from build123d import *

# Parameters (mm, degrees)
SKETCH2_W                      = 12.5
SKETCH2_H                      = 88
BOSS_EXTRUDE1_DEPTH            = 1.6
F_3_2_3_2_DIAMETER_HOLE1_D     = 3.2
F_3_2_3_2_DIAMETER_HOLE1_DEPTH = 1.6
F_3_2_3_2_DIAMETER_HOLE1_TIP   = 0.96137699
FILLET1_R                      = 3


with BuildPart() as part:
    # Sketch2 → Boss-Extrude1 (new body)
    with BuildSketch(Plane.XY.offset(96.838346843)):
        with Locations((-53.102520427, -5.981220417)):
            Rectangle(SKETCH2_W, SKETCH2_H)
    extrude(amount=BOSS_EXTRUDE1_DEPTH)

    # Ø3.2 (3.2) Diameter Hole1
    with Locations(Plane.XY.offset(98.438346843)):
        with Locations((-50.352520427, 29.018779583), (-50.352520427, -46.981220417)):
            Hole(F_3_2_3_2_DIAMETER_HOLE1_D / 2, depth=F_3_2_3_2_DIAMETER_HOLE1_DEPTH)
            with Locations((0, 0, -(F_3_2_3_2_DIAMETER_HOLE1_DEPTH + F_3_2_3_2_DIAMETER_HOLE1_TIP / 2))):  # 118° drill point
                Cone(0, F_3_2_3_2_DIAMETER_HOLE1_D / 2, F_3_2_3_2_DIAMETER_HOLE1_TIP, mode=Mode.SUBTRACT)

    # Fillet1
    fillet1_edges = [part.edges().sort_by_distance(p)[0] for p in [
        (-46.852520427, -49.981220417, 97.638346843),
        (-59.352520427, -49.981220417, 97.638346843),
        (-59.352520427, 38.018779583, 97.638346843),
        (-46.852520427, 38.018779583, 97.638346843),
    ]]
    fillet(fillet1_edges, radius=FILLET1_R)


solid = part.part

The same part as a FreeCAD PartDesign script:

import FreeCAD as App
import Part
import Sketcher
from FreeCAD import Vector
Q = App.Units.Quantity


def edges_at(feature, points):
    """Names of the edges that pass closest to the given points."""
    edges = feature.Shape.Edges
    near = lambda p: min(range(len(edges)), key=lambda i: edges[i].distToShape(Part.Vertex(*p))[0])
    return sorted({f"Edge{near(p) + 1}" for p in points})

doc = App.newDocument("Part")
params = doc.addObject("Spreadsheet::Sheet", "Params")
for row, (alias, value) in enumerate([
    ("sketch1_height", "88 mm"),
    ("sketch1_width", "12.5 mm"),
    ("pad1_length", "1.6 mm"),
    ("sketch2_diameter", "3.2 mm"),
    ("hole_diameter", "3.2 mm"),
    ("hole_depth", "1.6 mm"),
    ("fillet_radius", "3 mm"),
], start=1):
    params.set(f"A{row}", alias)
    params.set(f"B{row}", "=" + value)
    params.setAlias(f"B{row}", alias)

body = doc.addObject("PartDesign::Body", "Body")

# Sketch on XY plane
sketch1 = body.newObject("Sketcher::SketchObject", "Sketch")
sketch1.AttachmentSupport = (doc.getObject("XY_Plane"), [""])
sketch1.MapMode = "FlatFace"
sketch1.AttachmentOffset = App.Placement(Vector(0, 0, 96.838347), App.Rotation())
sketch1.addGeometry([
    Part.LineSegment(Vector(-59, 38, 0), Vector(-59, -50, 0)),
    Part.LineSegment(Vector(-59, -50, 0), Vector(-47, -50, 0)),
    Part.LineSegment(Vector(-47, -50, 0), Vector(-47, 38, 0)),
    Part.LineSegment(Vector(-47, 38, 0), Vector(-59, 38, 0)),
], False)
sketch1.addConstraint([
    Sketcher.Constraint("Coincident", 0, 2, 1, 1),
    Sketcher.Constraint("Coincident", 1, 2, 2, 1),
    Sketcher.Constraint("Coincident", 2, 2, 3, 1),
    Sketcher.Constraint("Coincident", 3, 2, 0, 1),
    Sketcher.Constraint("Vertical", 0),
    Sketcher.Constraint("Horizontal", 1),
    Sketcher.Constraint("Vertical", 2),
    Sketcher.Constraint("Horizontal", 3),
    Sketcher.Constraint("DistanceY", 0, 2, 0, 1, Q("88 mm")),
    Sketcher.Constraint("DistanceX", 1, 1, 1, 2, Q("12.5 mm")),
    Sketcher.Constraint("DistanceX", 0, 2, -1, 1, Q("59.35252 mm")),
    Sketcher.Constraint("DistanceY", 0, 2, -1, 1, Q("49.98122 mm")),
])
sketch1.setExpression("Constraints[8]", "Params.sketch1_height")
sketch1.setExpression("Constraints[9]", "Params.sketch1_width")
pad1 = body.newObject("PartDesign::Pad", "Pad")
pad1.Profile = sketch1
pad1.setExpression("Length", "Params.pad1_length")

# Sketch on XY plane
sketch2 = body.newObject("Sketcher::SketchObject", "Sketch001")
sketch2.AttachmentSupport = (doc.getObject("XY_Plane"), [""])
sketch2.MapMode = "FlatFace"
sketch2.AttachmentOffset = App.Placement(Vector(0, 0, 98.438347), App.Rotation())
sketch2.addGeometry([
    Part.Circle(Vector(-50.4, 29, 0), Vector(0, 0, 1), 1.6),
    Part.Circle(Vector(-50.4, -47, 0), Vector(0, 0, 1), 1.6),
], False)
sketch2.addConstraint([
    Sketcher.Constraint("Equal", 0, 1),
    Sketcher.Constraint("Vertical", 0, 3, 1, 3),
    Sketcher.Constraint("Diameter", 0, Q("3.2 mm")),
    Sketcher.Constraint("DistanceY", 1, 3, 0, 3, Q("76 mm")),
    Sketcher.Constraint("DistanceX", 0, 3, -1, 1, Q("50.35252 mm")),
    Sketcher.Constraint("DistanceY", -1, 1, 0, 3, Q("29.01878 mm")),
])
sketch2.setExpression("Constraints[2]", "Params.sketch2_diameter")
doc.recompute()
hole = body.newObject("PartDesign::Hole", "Hole")
hole.Profile = sketch2
hole.ThreadType = "None"
hole.setExpression("Diameter", "Params.hole_diameter")
hole.DepthType = "Dimension"
hole.setExpression("Depth", "Params.hole_depth")
hole.DrillPoint = "Angled"
hole.DrillPointAngle = 118
doc.recompute()

fillet = body.newObject("PartDesign::Fillet", "Fillet")
fillet.Base = (hole, edges_at(hole, [
    (-46.853, -49.981, 97.638),
    (-59.353, -49.981, 97.638),
    (-59.353, 38.019, 97.638),
    (-46.853, 38.019, 97.638),
]))
fillet.setExpression("Radius", "Params.fillet_radius")

doc.recompute()
